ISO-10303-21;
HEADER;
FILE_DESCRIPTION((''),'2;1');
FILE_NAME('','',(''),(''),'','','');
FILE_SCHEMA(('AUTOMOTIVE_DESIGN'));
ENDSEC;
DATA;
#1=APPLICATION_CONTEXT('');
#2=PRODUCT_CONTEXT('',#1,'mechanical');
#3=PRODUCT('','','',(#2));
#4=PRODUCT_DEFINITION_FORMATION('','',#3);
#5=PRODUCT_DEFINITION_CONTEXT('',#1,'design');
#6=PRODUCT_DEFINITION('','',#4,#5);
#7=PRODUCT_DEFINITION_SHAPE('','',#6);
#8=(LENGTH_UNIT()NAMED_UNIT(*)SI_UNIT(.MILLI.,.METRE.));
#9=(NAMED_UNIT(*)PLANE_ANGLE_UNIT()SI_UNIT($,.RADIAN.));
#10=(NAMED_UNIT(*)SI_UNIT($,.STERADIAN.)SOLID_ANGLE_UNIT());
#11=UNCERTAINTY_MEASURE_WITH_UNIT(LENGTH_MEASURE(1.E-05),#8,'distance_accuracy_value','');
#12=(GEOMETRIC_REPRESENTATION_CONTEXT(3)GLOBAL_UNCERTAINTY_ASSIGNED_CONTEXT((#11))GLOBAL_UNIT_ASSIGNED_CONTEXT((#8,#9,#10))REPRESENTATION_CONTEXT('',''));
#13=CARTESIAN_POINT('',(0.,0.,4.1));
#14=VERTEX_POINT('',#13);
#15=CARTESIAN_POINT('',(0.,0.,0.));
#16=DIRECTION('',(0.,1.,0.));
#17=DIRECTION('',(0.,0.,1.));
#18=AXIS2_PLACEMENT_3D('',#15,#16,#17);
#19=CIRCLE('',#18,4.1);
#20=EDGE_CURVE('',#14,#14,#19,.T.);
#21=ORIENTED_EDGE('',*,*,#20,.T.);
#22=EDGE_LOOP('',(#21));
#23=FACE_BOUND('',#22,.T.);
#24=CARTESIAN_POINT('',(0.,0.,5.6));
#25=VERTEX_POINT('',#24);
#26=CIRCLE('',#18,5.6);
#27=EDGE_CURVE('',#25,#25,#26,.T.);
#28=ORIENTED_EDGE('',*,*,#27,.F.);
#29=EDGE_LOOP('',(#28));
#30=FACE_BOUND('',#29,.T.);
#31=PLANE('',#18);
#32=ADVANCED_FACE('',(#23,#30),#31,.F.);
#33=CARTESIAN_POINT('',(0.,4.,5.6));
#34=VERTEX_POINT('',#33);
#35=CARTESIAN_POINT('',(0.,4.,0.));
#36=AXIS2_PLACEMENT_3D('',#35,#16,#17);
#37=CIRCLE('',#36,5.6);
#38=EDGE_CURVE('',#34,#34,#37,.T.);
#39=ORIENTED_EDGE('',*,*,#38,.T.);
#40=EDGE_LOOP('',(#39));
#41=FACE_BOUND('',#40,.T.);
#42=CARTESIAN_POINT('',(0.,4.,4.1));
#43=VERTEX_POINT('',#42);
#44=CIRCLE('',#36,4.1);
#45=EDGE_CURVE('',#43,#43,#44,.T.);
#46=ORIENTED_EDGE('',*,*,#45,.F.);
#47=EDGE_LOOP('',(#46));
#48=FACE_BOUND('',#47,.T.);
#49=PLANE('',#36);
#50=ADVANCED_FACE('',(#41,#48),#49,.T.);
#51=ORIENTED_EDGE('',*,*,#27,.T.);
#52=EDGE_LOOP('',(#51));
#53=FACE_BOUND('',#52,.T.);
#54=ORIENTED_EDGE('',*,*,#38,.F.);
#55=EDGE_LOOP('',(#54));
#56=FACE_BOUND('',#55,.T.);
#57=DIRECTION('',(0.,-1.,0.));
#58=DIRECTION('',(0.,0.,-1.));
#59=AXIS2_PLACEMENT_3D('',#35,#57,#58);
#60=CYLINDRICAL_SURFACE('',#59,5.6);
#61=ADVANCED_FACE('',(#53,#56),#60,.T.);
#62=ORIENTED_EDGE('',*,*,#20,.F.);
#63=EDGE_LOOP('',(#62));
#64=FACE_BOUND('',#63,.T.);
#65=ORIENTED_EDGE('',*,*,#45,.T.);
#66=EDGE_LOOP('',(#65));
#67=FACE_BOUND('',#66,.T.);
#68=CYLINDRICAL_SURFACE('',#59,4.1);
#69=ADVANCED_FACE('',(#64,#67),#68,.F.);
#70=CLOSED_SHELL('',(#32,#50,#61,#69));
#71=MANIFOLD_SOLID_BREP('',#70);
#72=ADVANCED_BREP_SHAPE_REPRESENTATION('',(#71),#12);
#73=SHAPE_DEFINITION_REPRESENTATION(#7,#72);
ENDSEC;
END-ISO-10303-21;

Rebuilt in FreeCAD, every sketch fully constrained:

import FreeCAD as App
import Part
import Sketcher

doc = App.newDocument("Part")
body = doc.addObject("PartDesign::Body", "Body")

# Sketch on XZ plane
sketch1 = body.newObject("Sketcher::SketchObject", "Sketch")
sketch1.AttachmentSupport = (doc.getObject("XZ_Plane"), [""])
sketch1.MapMode = "FlatFace"
sketch1.addGeometry(Part.Circle(App.Vector(0, 0, 0), App.Vector(0, 0, 1), 5.6), False)
sketch1.addGeometry(Part.Circle(App.Vector(0, 0, 0), App.Vector(0, 0, 1), 4.1), False)
sketch1.addConstraint(Sketcher.Constraint("Coincident", 0, 3, -1, 1))
sketch1.addConstraint(Sketcher.Constraint("Coincident", 1, 3, -1, 1))
sketch1.addConstraint(Sketcher.Constraint("Diameter", 0, 11.2))
sketch1.addConstraint(Sketcher.Constraint("Diameter", 1, 8.2))
pad1 = body.newObject("PartDesign::Pad", "Pad")
pad1.Profile = sketch1
pad1.Length = 4
pad1.Reversed = True

doc.recompute()
